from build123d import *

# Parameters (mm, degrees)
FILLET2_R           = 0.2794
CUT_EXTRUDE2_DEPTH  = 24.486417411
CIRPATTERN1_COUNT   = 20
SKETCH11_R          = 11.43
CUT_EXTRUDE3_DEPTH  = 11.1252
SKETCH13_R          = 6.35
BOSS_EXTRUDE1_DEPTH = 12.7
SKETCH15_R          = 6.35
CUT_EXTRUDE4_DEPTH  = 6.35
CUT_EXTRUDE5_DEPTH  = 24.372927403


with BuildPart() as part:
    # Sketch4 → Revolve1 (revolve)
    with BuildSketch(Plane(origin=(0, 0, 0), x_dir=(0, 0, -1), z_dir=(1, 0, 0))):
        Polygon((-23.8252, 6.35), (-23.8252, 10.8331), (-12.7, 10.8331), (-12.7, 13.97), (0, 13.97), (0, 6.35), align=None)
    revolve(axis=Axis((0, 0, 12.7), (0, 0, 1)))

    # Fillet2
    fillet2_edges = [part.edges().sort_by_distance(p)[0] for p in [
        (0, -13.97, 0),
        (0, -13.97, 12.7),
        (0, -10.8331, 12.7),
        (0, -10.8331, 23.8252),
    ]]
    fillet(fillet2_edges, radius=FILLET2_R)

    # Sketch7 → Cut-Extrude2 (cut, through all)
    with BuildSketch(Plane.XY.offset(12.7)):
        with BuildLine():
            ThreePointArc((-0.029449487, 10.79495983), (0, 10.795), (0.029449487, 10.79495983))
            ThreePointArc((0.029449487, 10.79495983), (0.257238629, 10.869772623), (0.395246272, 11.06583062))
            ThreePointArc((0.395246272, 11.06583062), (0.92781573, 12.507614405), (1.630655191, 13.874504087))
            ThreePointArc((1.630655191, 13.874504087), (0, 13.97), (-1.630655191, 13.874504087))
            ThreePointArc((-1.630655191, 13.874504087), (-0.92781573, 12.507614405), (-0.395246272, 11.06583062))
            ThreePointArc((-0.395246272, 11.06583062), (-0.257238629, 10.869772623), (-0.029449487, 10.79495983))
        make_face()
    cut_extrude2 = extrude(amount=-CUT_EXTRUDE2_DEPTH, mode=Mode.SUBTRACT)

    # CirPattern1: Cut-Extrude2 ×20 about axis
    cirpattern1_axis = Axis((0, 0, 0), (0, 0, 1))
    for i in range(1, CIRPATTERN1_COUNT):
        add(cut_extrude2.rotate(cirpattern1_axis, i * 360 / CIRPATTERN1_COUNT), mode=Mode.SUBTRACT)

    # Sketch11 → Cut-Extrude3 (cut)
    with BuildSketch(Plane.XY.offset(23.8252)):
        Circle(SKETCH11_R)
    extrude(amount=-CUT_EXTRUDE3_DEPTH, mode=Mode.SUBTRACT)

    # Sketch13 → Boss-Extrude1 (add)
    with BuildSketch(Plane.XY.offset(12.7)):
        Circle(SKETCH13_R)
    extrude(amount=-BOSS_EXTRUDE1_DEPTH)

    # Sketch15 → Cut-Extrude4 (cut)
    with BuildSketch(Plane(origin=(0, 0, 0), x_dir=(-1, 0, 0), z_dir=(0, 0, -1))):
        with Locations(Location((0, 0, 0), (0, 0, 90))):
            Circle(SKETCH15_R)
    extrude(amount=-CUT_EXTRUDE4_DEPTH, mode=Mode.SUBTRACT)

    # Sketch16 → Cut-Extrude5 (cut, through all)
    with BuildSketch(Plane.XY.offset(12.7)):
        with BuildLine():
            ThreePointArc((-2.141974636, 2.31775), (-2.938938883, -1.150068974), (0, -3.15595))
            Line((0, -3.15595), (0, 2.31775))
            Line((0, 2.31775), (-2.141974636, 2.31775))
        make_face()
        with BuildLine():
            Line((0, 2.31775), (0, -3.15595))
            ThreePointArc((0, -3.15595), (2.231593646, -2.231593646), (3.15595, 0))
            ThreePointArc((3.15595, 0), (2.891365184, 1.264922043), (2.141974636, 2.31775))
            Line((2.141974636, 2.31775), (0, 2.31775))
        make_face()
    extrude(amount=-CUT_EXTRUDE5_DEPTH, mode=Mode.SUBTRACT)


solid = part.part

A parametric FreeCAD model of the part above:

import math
import FreeCAD as App
import Part
import Sketcher

V = App.Vector
Q = App.Units.Quantity


def edges_at(feature, points):
    """Names of the edges that pass closest to the given points."""
    edges = feature.Shape.Edges
    near = lambda p: min(range(len(edges)), key=lambda i: edges[i].distToShape(Part.Vertex(*p))[0])
    return sorted({f"Edge{near(p) + 1}" for p in points})


def add_polygon(sketch, points):
    """Adds a closed chain of lines whose ends are joined by coincident constraints."""
    first, n = sketch.GeometryCount, len(points)
    for a, b in zip(points, points[1:] + points[:1]):
        sketch.addGeometry(Part.LineSegment(App.Vector(*a, 0), App.Vector(*b, 0)), False)
    for i in range(n):
        sketch.addConstraint(Sketcher.Constraint("Coincident", first + i, 2, first + (i + 1) % n, 1))

doc = App.newDocument("Part")
body = doc.addObject("PartDesign::Body", "Body")

# Sketch on YZ plane
sketch1 = doc.addObject("Sketcher::SketchObject", "Sketch")
body.addObject(sketch1)
sketch1.AttachmentSupport = (doc.YZ_Plane, [""])
sketch1.MapMode = "FlatFace"
add_polygon(sketch1, [(10.8, 23.8), (6.3, 23.8), (6.3, 0), (14, 0), (14, 12.7), (10.8, 12.7)])  # lines 0-5
sketch1.addConstraint([
    Sketcher.Constraint("Horizontal", 0),
    Sketcher.Constraint("Vertical", 1),
    Sketcher.Constraint("Horizontal", 2),
    Sketcher.Constraint("Vertical", 3),
    Sketcher.Constraint("Horizontal", 4),
    Sketcher.Constraint("Vertical", 5),
    Sketcher.Constraint("PointOnObject", 1, 2, -1),
    Sketcher.Constraint("DistanceX", 2, 1, 2, 2, Q("0.3 in")),
    Sketcher.Constraint("DistanceY", 3, 1, 3, 2, Q("0.5 in")),
    Sketcher.Constraint("DistanceY", 1, 2, 1, 1, Q("0.938 in")),
    Sketcher.Constraint("DistanceX", -1, 1, 0, 2, Q("0.25 in")),
    Sketcher.Constraint("DistanceX", 0, 2, 0, 1, Q("0.1765 in")),
])
revolution = doc.addObject("PartDesign::Revolution", "Revolution")
body.addObject(revolution)
revolution.Profile = sketch1
revolution.ReferenceAxis = (sketch1, ["V_Axis"])
revolution.Angle = 360
doc.recompute()

fillet = doc.addObject("PartDesign::Fillet", "Fillet")
body.addObject(fillet)
fillet.Base = (revolution, edges_at(revolution, [
    (0, -13.97, 0),
    (0, -13.97, 12.7),
    (0, -10.833, 12.7),
    (0, -10.833, 23.825),
]))
fillet.Radius = Q("0.011 in")

# Sketch on XY plane
sketch2 = doc.addObject("Sketcher::SketchObject", "Sketch001")
body.addObject(sketch2)
sketch2.AttachmentSupport = (doc.XY_Plane, [""])
sketch2.MapMode = "FlatFace"
sketch2.AttachmentOffset = App.Placement(V(0, 0, 0.5 * 25.4), App.Rotation())
sketch2.addGeometry([
    Part.ArcOfCircle(Part.Circle(V(0, 0, 0), V(0, 0, 1), 10.8), math.radians(89.84), math.radians(90.16)),  # 0
    Part.ArcOfCircle(Part.Circle(V(0.03, 11.18, 0), V(0, 0, 1), 0.38), math.radians(-90), math.radians(-17)),  # 1
    Part.ArcOfCircle(Part.Circle(V(12.55, 7.39, 0), V(0, 0, 1), 12.7), math.radians(149.32), math.radians(163.2)),  # 2
    Part.ArcOfCircle(Part.Circle(V(0, 0, 0), V(0, 0, 1), 13.97), math.radians(83.3), math.radians(96.7)),  # 3
    Part.ArcOfCircle(Part.Circle(V(-12.55, 7.39, 0), V(0, 0, 1), 12.7), math.radians(16.8), math.radians(30.68)),  # 4
    Part.ArcOfCircle(Part.Circle(V(-0.03, 11.18, 0), V(0, 0, 1), 0.38), math.radians(-163), math.radians(-90)),  # 5
], False)
sketch2.addConstraint([
    Sketcher.Constraint("Tangent", 0, 1, 1, 1),
    Sketcher.Constraint("Tangent", 1, 2, 2, 2),
    Sketcher.Constraint("Coincident", 2, 1, 3, 1),
    Sketcher.Constraint("Coincident", 3, 2, 4, 2),
    Sketcher.Constraint("Tangent", 4, 1, 5, 1),
    Sketcher.Constraint("Tangent", 5, 2, 0, 2),
    Sketcher.Constraint("Coincident", 3, 3, -1, 1),
    Sketcher.Constraint("Equal", 2, 4),
    Sketcher.Constraint("Equal", 1, 5),
    Sketcher.Constraint("Symmetric", 2, 3, 4, 3, -2),
    Sketcher.Constraint("PointOnObject", 0, 3, -2),
    Sketcher.Constraint("Radius", 2, Q("0.5 in")),
    Sketcher.Constraint("Radius", 3, Q("0.55 in")),
    Sketcher.Constraint("DistanceY", 0, 3, 0, 1, Q("0.4250002 in")),
    Sketcher.Constraint("Radius", 1, 0.381028),
    Sketcher.Constraint("DistanceX", 3, 2, 1, 2, 2.025901),
    Sketcher.Constraint("DistanceX", 5, 2, 0, 1, 0.058899),
    Sketcher.Constraint("DistanceX", -1, 1, 2, 3, 12.552938),
])
pocket1 = doc.addObject("PartDesign::Pocket", "Pocket")
body.addObject(pocket1)
pocket1.Profile = sketch2
pocket1.Type = "ThroughAll"
doc.recompute()

polarpattern = doc.addObject("PartDesign::PolarPattern", "PolarPattern")
body.addObject(polarpattern)
polarpattern.Originals = [pocket1]
polarpattern.Axis = (doc.Z_Axis, [""])
polarpattern.Angle = 360
polarpattern.Occurrences = 20
body.Tip = polarpattern

# Sketch on XY plane
sketch3 = doc.addObject("Sketcher::SketchObject", "Sketch002")
body.addObject(sketch3)
sketch3.AttachmentSupport = (doc.XY_Plane, [""])
sketch3.MapMode = "FlatFace"
sketch3.AttachmentOffset = App.Placement(V(0, 0, 0.938 * 25.4), App.Rotation())
sketch3.addGeometry(Part.Circle(V(0, 0, 0), V(0, 0, 1), 11), False)
sketch3.addConstraint([
    Sketcher.Constraint("Coincident", 0, 3, -1, 1),
    Sketcher.Constraint("Diameter", 0, Q("0.9 in")),
])
pocket2 = doc.addObject("PartDesign::Pocket", "Pocket001")
body.addObject(pocket2)
pocket2.Profile = sketch3
pocket2.Length = Q("0.438 in")

# Sketch on XY plane
sketch4 = doc.addObject("Sketcher::SketchObject", "Sketch003")
body.addObject(sketch4)
sketch4.AttachmentSupport = (doc.XY_Plane, [""])
sketch4.MapMode = "FlatFace"
sketch4.AttachmentOffset = App.Placement(V(0, 0, 0.5 * 25.4), App.Rotation())
sketch4.addGeometry(Part.Circle(V(0, 0, 0), V(0, 0, 1), 6), False)
sketch4.addConstraint([
    Sketcher.Constraint("Coincident", 0, 3, -1, 1),
    Sketcher.Constraint("Diameter", 0, Q("0.5 in")),
])
pad1 = doc.addObject("PartDesign::Pad", "Pad")
body.addObject(pad1)
pad1.Profile = sketch4
pad1.Length = Q("0.5 in")
pad1.Reversed = True

# Sketch on XY plane
sketch5 = doc.addObject("Sketcher::SketchObject", "Sketch004")
body.addObject(sketch5)
sketch5.AttachmentSupport = (doc.XY_Plane, [""])
sketch5.MapMode = "FlatFace"
sketch5.addGeometry(Part.Circle(V(0, 0, 0), V(0, 0, 1), 6), False)
sketch5.addConstraint([
    Sketcher.Constraint("Coincident", 0, 3, -1, 1),
    Sketcher.Constraint("Diameter", 0, Q("0.5 in")),
])
pocket3 = doc.addObject("PartDesign::Pocket", "Pocket002")
body.addObject(pocket3)
pocket3.Profile = sketch5
pocket3.Length = Q("0.25 in")
pocket3.Reversed = True

# Sketch on XY plane
sketch6 = doc.addObject("Sketcher::SketchObject", "Sketch005")
body.addObject(sketch6)
sketch6.AttachmentSupport = (doc.XY_Plane, [""])
sketch6.MapMode = "FlatFace"
sketch6.AttachmentOffset = App.Placement(V(0, 0, 0.5 * 25.4), App.Rotation())
sketch6.addGeometry([
    Part.ArcOfCircle(Part.Circle(V(0, 0, 0), V(0, 0, 1), 3.2), math.radians(133), math.radians(270)),
    Part.ArcOfCircle(Part.Circle(V(0, 0, 0), V(0, 0, 1), 3.2), math.radians(-90), math.radians(0)),
    Part.ArcOfCircle(Part.Circle(V(0, 0, 0), V(0, 0, 1), 3.2), math.radians(0), math.radians(47)),
    Part.LineSegment(V(2.1, 2.3, 0), V(-2.1, 2.3, 0)),
], False)
sketch6.addConstraint([
    Sketcher.Constraint("Tangent", 0, 2, 1, 1),
    Sketcher.Constraint("Tangent", 1, 2, 2, 1),
    Sketcher.Constraint("Coincident", 2, 2, 3, 1),
    Sketcher.Constraint("Coincident", 3, 2, 0, 1),
    Sketcher.Constraint("Horizontal", 3),
    Sketcher.Constraint("Coincident", 0, 3, -1, 1),
    Sketcher.Constraint("Coincident", 2, 3, -1, 1),
    Sketcher.Constraint("PointOnObject", 0, 2, -2),
    Sketcher.Constraint("PointOnObject", 1, 2, -1),
    Sketcher.Constraint("Radius", 0, 3.15595),
    Sketcher.Constraint("DistanceY", 0, 2, 2, 2, Q("0.2155 in")),
])
pocket4 = doc.addObject("PartDesign::Pocket", "Pocket003")
body.addObject(pocket4)
pocket4.Profile = sketch6
pocket4.Type = "ThroughAll"

doc.recompute()
